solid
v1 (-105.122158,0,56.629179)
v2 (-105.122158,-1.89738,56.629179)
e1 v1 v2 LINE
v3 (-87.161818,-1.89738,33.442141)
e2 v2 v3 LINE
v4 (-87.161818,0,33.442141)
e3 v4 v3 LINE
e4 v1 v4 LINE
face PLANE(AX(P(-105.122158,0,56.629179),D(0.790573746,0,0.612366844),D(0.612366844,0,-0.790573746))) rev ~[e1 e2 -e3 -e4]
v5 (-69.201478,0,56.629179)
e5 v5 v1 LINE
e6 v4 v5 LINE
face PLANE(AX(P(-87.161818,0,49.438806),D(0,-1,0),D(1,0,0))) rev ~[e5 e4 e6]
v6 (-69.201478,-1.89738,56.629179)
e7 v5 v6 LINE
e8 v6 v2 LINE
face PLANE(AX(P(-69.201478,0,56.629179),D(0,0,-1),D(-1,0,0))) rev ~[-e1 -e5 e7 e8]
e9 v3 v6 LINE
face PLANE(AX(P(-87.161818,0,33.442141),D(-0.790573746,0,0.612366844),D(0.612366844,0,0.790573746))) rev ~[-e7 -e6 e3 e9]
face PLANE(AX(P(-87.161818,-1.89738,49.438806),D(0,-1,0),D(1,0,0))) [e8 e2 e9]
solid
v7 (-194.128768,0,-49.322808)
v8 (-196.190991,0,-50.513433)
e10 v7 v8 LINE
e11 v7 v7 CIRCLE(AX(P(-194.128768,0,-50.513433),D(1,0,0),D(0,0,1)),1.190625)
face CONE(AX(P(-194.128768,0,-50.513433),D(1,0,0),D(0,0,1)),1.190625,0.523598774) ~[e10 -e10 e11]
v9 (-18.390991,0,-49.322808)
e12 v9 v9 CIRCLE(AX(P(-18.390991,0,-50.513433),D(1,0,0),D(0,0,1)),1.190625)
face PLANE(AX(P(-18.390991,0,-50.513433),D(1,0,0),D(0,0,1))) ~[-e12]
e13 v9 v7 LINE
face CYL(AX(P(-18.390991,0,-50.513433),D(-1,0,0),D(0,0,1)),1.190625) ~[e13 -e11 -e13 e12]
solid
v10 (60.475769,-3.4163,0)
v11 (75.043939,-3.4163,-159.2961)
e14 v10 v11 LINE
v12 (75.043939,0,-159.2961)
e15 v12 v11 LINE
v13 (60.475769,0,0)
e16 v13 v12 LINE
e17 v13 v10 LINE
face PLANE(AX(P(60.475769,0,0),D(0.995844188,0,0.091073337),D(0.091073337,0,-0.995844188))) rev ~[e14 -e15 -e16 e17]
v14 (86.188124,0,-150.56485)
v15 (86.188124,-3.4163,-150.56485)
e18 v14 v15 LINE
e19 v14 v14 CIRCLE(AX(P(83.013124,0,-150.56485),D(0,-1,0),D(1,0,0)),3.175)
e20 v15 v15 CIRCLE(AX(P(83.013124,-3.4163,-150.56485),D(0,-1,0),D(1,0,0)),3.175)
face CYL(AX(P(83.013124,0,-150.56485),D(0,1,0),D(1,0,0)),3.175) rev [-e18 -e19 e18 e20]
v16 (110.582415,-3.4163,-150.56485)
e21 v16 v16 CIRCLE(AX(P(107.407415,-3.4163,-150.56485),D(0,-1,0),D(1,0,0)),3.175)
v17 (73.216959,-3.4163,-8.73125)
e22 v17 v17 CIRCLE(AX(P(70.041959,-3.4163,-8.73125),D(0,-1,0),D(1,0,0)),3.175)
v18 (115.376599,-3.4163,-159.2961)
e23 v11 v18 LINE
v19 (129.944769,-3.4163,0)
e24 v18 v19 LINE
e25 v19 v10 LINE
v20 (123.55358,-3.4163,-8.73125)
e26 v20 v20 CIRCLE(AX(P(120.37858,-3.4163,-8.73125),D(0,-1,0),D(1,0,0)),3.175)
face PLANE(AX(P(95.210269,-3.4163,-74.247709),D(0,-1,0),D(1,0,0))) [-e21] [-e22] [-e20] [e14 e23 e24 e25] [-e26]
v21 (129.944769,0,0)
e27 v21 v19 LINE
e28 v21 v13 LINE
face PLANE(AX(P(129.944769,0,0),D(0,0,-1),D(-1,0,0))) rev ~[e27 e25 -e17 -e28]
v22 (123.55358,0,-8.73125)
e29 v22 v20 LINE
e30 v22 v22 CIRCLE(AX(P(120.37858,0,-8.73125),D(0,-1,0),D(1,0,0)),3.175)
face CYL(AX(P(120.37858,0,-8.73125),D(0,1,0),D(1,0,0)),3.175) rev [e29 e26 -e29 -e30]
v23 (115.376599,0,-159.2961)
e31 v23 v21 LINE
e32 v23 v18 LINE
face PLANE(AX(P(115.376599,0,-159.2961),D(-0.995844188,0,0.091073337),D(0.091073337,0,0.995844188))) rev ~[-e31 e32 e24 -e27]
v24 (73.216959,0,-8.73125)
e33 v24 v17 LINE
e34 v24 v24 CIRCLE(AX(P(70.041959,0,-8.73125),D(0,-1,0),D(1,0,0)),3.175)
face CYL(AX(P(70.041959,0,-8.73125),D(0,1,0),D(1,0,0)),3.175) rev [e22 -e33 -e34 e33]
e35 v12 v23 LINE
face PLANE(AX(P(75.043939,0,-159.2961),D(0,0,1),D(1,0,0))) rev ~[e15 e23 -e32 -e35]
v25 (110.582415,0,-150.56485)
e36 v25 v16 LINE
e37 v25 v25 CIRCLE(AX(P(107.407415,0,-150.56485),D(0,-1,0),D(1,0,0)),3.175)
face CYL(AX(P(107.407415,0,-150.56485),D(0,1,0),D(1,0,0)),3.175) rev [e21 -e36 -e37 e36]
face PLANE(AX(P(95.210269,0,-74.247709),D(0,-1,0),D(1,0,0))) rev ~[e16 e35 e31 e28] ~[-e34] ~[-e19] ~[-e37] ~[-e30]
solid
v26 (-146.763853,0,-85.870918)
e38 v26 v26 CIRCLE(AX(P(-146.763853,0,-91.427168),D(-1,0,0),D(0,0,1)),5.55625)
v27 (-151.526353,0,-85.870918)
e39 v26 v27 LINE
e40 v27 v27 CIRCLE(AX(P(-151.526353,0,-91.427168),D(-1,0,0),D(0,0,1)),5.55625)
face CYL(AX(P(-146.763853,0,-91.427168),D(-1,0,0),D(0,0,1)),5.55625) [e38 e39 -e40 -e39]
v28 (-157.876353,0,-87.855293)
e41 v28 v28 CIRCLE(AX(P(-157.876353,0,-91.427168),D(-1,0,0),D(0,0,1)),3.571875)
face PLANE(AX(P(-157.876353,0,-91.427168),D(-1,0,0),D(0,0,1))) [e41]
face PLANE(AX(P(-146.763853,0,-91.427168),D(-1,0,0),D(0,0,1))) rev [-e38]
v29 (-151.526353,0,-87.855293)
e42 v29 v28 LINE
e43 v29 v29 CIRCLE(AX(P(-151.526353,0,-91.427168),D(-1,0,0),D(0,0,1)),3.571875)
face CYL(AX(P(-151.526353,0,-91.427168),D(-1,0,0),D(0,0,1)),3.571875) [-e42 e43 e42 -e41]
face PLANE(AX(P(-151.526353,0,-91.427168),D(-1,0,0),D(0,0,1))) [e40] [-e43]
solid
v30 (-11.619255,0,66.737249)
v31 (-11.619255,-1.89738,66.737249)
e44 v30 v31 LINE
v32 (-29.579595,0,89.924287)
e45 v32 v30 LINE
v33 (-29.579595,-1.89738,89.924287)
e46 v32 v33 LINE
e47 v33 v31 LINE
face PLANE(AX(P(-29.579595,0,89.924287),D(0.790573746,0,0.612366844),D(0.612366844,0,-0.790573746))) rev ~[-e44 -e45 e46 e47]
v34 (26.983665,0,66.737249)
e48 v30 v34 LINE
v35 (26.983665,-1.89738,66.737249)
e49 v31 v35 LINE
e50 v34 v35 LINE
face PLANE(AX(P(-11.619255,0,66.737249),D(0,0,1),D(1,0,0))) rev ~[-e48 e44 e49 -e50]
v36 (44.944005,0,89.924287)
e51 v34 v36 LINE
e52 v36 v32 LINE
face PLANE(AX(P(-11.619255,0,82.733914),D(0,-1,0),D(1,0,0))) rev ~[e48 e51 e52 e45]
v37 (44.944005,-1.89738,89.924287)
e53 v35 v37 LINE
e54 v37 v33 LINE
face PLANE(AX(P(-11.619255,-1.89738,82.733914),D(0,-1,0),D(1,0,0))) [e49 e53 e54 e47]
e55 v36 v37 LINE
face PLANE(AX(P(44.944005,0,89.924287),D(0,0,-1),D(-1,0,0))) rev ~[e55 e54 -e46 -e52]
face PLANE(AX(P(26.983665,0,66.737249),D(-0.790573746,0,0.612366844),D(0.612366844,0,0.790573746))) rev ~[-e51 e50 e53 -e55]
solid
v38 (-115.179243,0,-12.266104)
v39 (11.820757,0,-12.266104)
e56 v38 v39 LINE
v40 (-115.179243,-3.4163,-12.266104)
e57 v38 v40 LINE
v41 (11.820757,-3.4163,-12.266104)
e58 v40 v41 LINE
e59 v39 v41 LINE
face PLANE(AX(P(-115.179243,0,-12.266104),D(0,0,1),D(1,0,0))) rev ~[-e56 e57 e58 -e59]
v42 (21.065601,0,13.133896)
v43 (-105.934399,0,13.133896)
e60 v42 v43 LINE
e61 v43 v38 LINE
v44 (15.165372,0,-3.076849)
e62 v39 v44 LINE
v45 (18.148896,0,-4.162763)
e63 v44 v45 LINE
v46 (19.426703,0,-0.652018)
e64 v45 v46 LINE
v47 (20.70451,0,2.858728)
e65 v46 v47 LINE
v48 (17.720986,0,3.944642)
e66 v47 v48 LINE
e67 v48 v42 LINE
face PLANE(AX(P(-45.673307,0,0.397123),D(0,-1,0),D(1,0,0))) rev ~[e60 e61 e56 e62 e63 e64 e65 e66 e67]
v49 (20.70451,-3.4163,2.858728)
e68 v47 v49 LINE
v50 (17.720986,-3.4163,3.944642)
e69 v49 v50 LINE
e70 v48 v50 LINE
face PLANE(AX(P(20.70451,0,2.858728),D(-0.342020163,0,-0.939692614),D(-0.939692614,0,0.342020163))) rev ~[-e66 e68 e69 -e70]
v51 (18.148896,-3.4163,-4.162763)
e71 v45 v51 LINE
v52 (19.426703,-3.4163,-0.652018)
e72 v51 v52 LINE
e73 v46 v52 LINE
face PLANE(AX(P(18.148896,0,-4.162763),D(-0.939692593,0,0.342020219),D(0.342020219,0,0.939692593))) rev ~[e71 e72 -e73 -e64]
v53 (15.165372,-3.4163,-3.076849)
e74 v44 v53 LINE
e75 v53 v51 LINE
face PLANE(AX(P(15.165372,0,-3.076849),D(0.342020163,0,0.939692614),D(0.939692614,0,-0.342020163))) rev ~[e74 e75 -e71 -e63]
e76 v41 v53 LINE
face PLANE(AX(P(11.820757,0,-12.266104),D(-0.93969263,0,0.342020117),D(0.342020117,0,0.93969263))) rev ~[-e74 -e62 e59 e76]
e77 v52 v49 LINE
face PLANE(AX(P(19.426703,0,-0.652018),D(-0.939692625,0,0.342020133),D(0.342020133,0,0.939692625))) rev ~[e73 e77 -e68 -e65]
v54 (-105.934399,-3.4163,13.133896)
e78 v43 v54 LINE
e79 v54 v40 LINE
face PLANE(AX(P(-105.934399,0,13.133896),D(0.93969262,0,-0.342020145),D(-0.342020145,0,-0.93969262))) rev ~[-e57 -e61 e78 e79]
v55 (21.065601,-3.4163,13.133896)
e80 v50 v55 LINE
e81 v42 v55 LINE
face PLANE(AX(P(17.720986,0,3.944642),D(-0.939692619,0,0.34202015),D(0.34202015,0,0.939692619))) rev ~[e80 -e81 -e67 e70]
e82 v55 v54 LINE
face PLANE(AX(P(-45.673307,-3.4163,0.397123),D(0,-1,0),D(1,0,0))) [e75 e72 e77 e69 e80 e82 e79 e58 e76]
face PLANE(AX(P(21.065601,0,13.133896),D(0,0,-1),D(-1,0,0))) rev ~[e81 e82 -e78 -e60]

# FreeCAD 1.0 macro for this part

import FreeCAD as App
import Part
import Sketcher
from FreeCAD import Vector
Q = App.Units.Quantity

doc = App.newDocument("Part")
params = doc.addObject("Spreadsheet::Sheet", "Params")
for row, (alias, value) in enumerate([
    ("sketch1_width", "5 in"),
    ("sketch1_length", "0.385 in"),
    ("sketch1_length2", "0.125 in"),
    ("pad1_length", "0.1345 in"),
    ("pad2_length", "0.0747 in"),
    ("sketch3_width", "2.934 in"),
    ("pad3_length", "0.0747 in"),
    ("sketch4_diameter", "0.25 in"),
    ("sketch4_width", "2.735 in"),
    ("pad4_length", "0.1345 in"),
    ("sketch5_width", "0.25 in"),
    ("sketch5_width2", "0.4375 in"),
    ("sketch5_height", "0.140625 in"),
    ("sketch5_height2", "0.21875 in"),
    ("revolution_angle", "360 deg"),
    ("sketch6_width", "7 in"),
    ("sketch6_height", "0.046875 in"),
    ("revolution2_angle", "360 deg"),
], start=1):
    params.set(f"A{row}", alias)
    params.set(f"B{row}", "=" + value)
    params.setAlias(f"B{row}", alias)

body = doc.addObject("PartDesign::Body", "Body")

# Sketch on XZ plane
sketch1 = body.newObject("Sketcher::SketchObject", "Sketch")
sketch1.AttachmentSupport = (doc.getObject("XZ_Plane"), [""])
sketch1.MapMode = "FlatFace"
sketch1.addGeometry([
    Part.LineSegment(Vector(-115.2, -12.3, 0), Vector(11.8, -12.3, 0)),  # 0
    Part.LineSegment(Vector(11.8, -12.3, 0), Vector(15.2, -3.1, 0)),  # 1
    Part.LineSegment(Vector(15.2, -3.1, 0), Vector(18.1, -4.2, 0)),  # 2
    Part.LineSegment(Vector(18.1, -4.2, 0), Vector(19.4, -0.7, 0)),  # 3
    Part.LineSegment(Vector(19.4, -0.7, 0), Vector(20.7, 2.9, 0)),  # 4
    Part.LineSegment(Vector(20.7, 2.9, 0), Vector(17.7, 3.9, 0)),  # 5
    Part.LineSegment(Vector(17.7, 3.9, 0), Vector(21.1, 13.1, 0)),  # 6
    Part.LineSegment(Vector(21.1, 13.1, 0), Vector(-105.9, 13.1, 0)),  # 7
    Part.LineSegment(Vector(-105.9, 13.1, 0), Vector(-115.2, -12.3, 0)),  # 8
], False)
sketch1.addConstraint([
    Sketcher.Constraint("Coincident", 0, 2, 1, 1),
    Sketcher.Constraint("Coincident", 1, 2, 2, 1),
    Sketcher.Constraint("Coincident", 2, 2, 3, 1),
    Sketcher.Constraint("Coincident", 3, 2, 4, 1),
    Sketcher.Constraint("Coincident", 4, 2, 5, 1),
    Sketcher.Constraint("Coincident", 5, 2, 6, 1),
    Sketcher.Constraint("Coincident", 6, 2, 7, 1),
    Sketcher.Constraint("Coincident", 7, 2, 8, 1),
    Sketcher.Constraint("Coincident", 8, 2, 0, 1),
    Sketcher.Constraint("Horizontal", 0),
    Sketcher.Constraint("Horizontal", 7),
    Sketcher.Constraint("Perpendicular", 1, 2),
    Sketcher.Constraint("Perpendicular", 2, 3),
    Sketcher.Constraint("Parallel", 3, 4),
    Sketcher.Constraint("Perpendicular", 4, 5),
    Sketcher.Constraint("Perpendicular", 5, 6),
    Sketcher.Constraint("Parallel", 6, 8),
    Sketcher.Constraint("Equal", 0, 7),
    Sketcher.Constraint("Equal", 3, 4),
    Sketcher.Constraint("Equal", 1, 6),
    Sketcher.Constraint("DistanceX", 0, 1, 0, 2, Q("5 in")),
    Sketcher.Constraint("Angle", 1, Q("70.000002 deg")),
    Sketcher.Constraint("DistanceY", 0, 2, 7, 2, Q("1 in")),
    Sketcher.Constraint("Distance", 1, Q("0.385 in")),
    Sketcher.Constraint("Distance", 2, Q("0.125 in")),
    Sketcher.Constraint("DistanceX", -1, 1, 6, 2, Q("21.065601 mm")),
    Sketcher.Constraint("DistanceY", 1, 2, -1, 1, Q("3.076849 mm")),
])
sketch1.setExpression("Constraints[20]", "Params.sketch1_width")
sketch1.setExpression("Constraints[23]", "Params.sketch1_length")
sketch1.setExpression("Constraints[24]", "Params.sketch1_length2")
pad1 = body.newObject("PartDesign::Pad", "Pad")
pad1.Profile = sketch1
pad1.setExpression("Length", "Params.pad1_length")
body2 = doc.addObject("PartDesign::Body", "Body001")

# Sketch on XZ plane
sketch2 = body2.newObject("Sketcher::SketchObject", "Sketch001")
sketch2.AttachmentSupport = (doc.getObject("XZ_Plane001"), [""])
sketch2.MapMode = "FlatFace"
sketch2.addGeometry([
    Part.LineSegment(Vector(-105, 57, 0), Vector(-87, 33, 0)),
    Part.LineSegment(Vector(-87, 33, 0), Vector(-69, 57, 0)),
    Part.LineSegment(Vector(-69, 57, 0), Vector(-105, 57, 0)),
], False)
sketch2.addConstraint([
    Sketcher.Constraint("Coincident", 0, 2, 1, 1),
    Sketcher.Constraint("Coincident", 1, 2, 2, 1),
    Sketcher.Constraint("Coincident", 2, 2, 0, 1),
    Sketcher.Constraint("Horizontal", 2),
    Sketcher.Constraint("Equal", 0, 1),
    Sketcher.Constraint("DistanceX", 2, 2, 2, 1, Q("1.4142 in")),
    Sketcher.Constraint("Distance", 0, Q("1.1547 in")),
    Sketcher.Constraint("DistanceY", -1, 1, 0, 2, Q("33.442141 mm")),
    Sketcher.Constraint("DistanceX", 2, 2, -1, 1, Q("105.122158 mm")),
])
pad2 = body2.newObject("PartDesign::Pad", "Pad001")
pad2.Profile = sketch2
pad2.setExpression("Length", "Params.pad2_length")
body3 = doc.addObject("PartDesign::Body", "Body002")

# Sketch on XZ plane
sketch3 = body3.newObject("Sketcher::SketchObject", "Sketch002")
sketch3.AttachmentSupport = (doc.getObject("XZ_Plane002"), [""])
sketch3.MapMode = "FlatFace"
sketch3.addGeometry([
    Part.LineSegment(Vector(-30, 90, 0), Vector(-12, 67, 0)),
    Part.LineSegment(Vector(-12, 67, 0), Vector(27, 67, 0)),
    Part.LineSegment(Vector(27, 67, 0), Vector(45, 90, 0)),
    Part.LineSegment(Vector(45, 90, 0), Vector(-30, 90, 0)),
], False)
sketch3.addConstraint([
    Sketcher.Constraint("Coincident", 0, 2, 1, 1),
    Sketcher.Constraint("Coincident", 1, 2, 2, 1),
    Sketcher.Constraint("Coincident", 2, 2, 3, 1),
    Sketcher.Constraint("Coincident", 3, 2, 0, 1),
    Sketcher.Constraint("Horizontal", 1),
    Sketcher.Constraint("Horizontal", 3),
    Sketcher.Constraint("Equal", 0, 2),
    Sketcher.Constraint("DistanceX", 3, 2, 3, 1, Q("2.934 in")),
    Sketcher.Constraint("DistanceX", 1, 1, 1, 2, Q("1.5198 in")),
    Sketcher.Constraint("Distance", 0, Q("1.1547 in")),
    Sketcher.Constraint("DistanceY", -1, 1, 0, 2, Q("66.737249 mm")),
    Sketcher.Constraint("DistanceX", 0, 2, -1, 1, Q("11.619255 mm")),
])
sketch3.setExpression("Constraints[7]", "Params.sketch3_width")
pad3 = body3.newObject("PartDesign::Pad", "Pad002")
pad3.Profile = sketch3
pad3.setExpression("Length", "Params.pad3_length")
body4 = doc.addObject("PartDesign::Body", "Body003")

# Sketch on XZ plane
sketch4 = body4.newObject("Sketcher::SketchObject", "Sketch003")
sketch4.AttachmentSupport = (doc.getObject("XZ_Plane003"), [""])
sketch4.MapMode = "FlatFace"
sketch4.addGeometry([
    Part.LineSegment(Vector(75, -159.3, 0), Vector(115.4, -159.3, 0)),  # 0
    Part.LineSegment(Vector(115.4, -159.3, 0), Vector(129.9, 0, 0)),  # 1
    Part.LineSegment(Vector(129.9, 0, 0), Vector(60.5, 0, 0)),  # 2
    Part.LineSegment(Vector(60.5, 0, 0), Vector(75, -159.3, 0)),  # 3
    Part.Circle(Vector(83, -150.6, 0), Vector(0, 0, 1), 3.2),  # 4
    Part.Circle(Vector(107.4, -150.6, 0), Vector(0, 0, 1), 3.2),  # 5
    Part.Circle(Vector(70, -8.7, 0), Vector(0, 0, 1), 3.2),  # 6
    Part.Circle(Vector(120.4, -8.7, 0), Vector(0, 0, 1), 3.2),  # 7
], False)
sketch4.addConstraint([
    Sketcher.Constraint("Coincident", 0, 2, 1, 1),
    Sketcher.Constraint("Coincident", 1, 2, 2, 1),
    Sketcher.Constraint("Coincident", 2, 2, 3, 1),
    Sketcher.Constraint("Coincident", 3, 2, 0, 1),
    Sketcher.Constraint("Horizontal", 0),
    Sketcher.Constraint("Horizontal", 2),
    Sketcher.Constraint("Equal", 4, 5),
    Sketcher.Constraint("Equal", 5, 6),
    Sketcher.Constraint("Equal", 6, 7),
    Sketcher.Constraint("PointOnObject", 1, 2, -1),
    Sketcher.Constraint("Horizontal", 4, 3, 5, 3),
    Sketcher.Constraint("Horizontal", 6, 3, 7, 3),
    Sketcher.Constraint("Equal", 1, 3),
    Sketcher.Constraint("Diameter", 4, Q("0.25 in")),
    Sketcher.Constraint("DistanceX", 2, 2, 2, 1, Q("2.735 in")),
    Sketcher.Constraint("DistanceX", 0, 1, 0, 2, Q("1.5879 in")),
    Sketcher.Constraint("DistanceY", 6, 3, -1, 1, Q("0.34375 in")),
    Sketcher.Constraint("DistanceY", 4, 3, 6, 3, Q("5.584 in")),
    Sketcher.Constraint("DistanceY", 0, 2, 5, 3, Q("0.34375 in")),
    Sketcher.Constraint("DistanceX", -1, 1, 0, 2, Q("115.376599 mm")),
    Sketcher.Constraint("DistanceX", -1, 1, 6, 3, Q("70.041959 mm")),
    Sketcher.Constraint("DistanceX", -1, 1, 7, 3, Q("120.37858 mm")),
    Sketcher.Constraint("DistanceX", 4, 3, 5, 3, Q("24.394291 mm")),
    Sketcher.Constraint("DistanceX", -1, 1, 4, 3, Q("83.013124 mm")),
])
sketch4.setExpression("Constraints[13]", "Params.sketch4_diameter")
sketch4.setExpression("Constraints[14]", "Params.sketch4_width")
pad4 = body4.newObject("PartDesign::Pad", "Pad003")
pad4.Profile = sketch4
pad4.setExpression("Length", "Params.pad4_length")
body5 = doc.addObject("PartDesign::Body", "Body004")

# Sketch on XZ plane
sketch5 = body5.newObject("Sketcher::SketchObject", "Sketch004")
sketch5.AttachmentSupport = (doc.getObject("XZ_Plane004"), [""])
sketch5.MapMode = "FlatFace"
sketch5.addGeometry([
    Part.LineSegment(Vector(-151.5, -87.9, 0), Vector(-157.9, -87.9, 0)),  # 0
    Part.LineSegment(Vector(-157.9, -87.9, 0), Vector(-157.9, -91.4, 0)),  # 1
    Part.LineSegment(Vector(-157.9, -91.4, 0), Vector(-146.8, -91.4, 0)),  # 2
    Part.LineSegment(Vector(-146.8, -91.4, 0), Vector(-146.8, -85.9, 0)),  # 3
    Part.LineSegment(Vector(-146.8, -85.9, 0), Vector(-151.5, -85.9, 0)),  # 4
    Part.LineSegment(Vector(-151.5, -85.9, 0), Vector(-151.5, -87.9, 0)),  # 5
], False)
sketch5.addGeometry(Part.LineSegment(Vector(-146.8, -91.4, 0), Vector(-157.9, -91.4, 0)), True)  # axis
sketch5.addConstraint([
    Sketcher.Constraint("Coincident", 0, 2, 1, 1),
    Sketcher.Constraint("Coincident", 1, 2, 2, 1),
    Sketcher.Constraint("Coincident", 2, 2, 3, 1),
    Sketcher.Constraint("Coincident", 3, 2, 4, 1),
    Sketcher.Constraint("Coincident", 4, 2, 5, 1),
    Sketcher.Constraint("Coincident", 5, 2, 0, 1),
    Sketcher.Constraint("Horizontal", 0),
    Sketcher.Constraint("Vertical", 1),
    Sketcher.Constraint("Horizontal", 2),
    Sketcher.Constraint("Vertical", 3),
    Sketcher.Constraint("Horizontal", 4),
    Sketcher.Constraint("Vertical", 5),
    Sketcher.Constraint("Horizontal", 6),
    Sketcher.Constraint("Coincident", 6, 1, 2, 2),
    Sketcher.Constraint("Vertical", 0, 2, 6, 2),
    Sketcher.Constraint("DistanceX", 0, 2, 0, 1, Q("0.25 in")),
    Sketcher.Constraint("DistanceX", 2, 1, 2, 2, Q("0.4375 in")),
    Sketcher.Constraint("DistanceY", 1, 2, 1, 1, Q("0.140625 in")),
    Sketcher.Constraint("DistanceY", 3, 1, 3, 2, Q("0.21875 in")),
    Sketcher.Constraint("DistanceY", 3, 2, -1, 1, Q("85.870918 mm")),
    Sketcher.Constraint("DistanceX", 0, 2, -1, 1, Q("157.876353 mm")),
])
sketch5.setExpression("Constraints[15]", "Params.sketch5_width")
sketch5.setExpression("Constraints[16]", "Params.sketch5_width2")
sketch5.setExpression("Constraints[17]", "Params.sketch5_height")
sketch5.setExpression("Constraints[18]", "Params.sketch5_height2")
revolution = body5.newObject("PartDesign::Revolution", "Revolution")
revolution.Profile = sketch5
revolution.ReferenceAxis = (sketch5, ["Axis0"])
revolution.setExpression("Angle", "Params.revolution_angle")
body6 = doc.addObject("PartDesign::Body", "Body005")

# Sketch on XZ plane
sketch6 = body6.newObject("Sketcher::SketchObject", "Sketch005")
sketch6.AttachmentSupport = (doc.getObject("XZ_Plane005"), [""])
sketch6.MapMode = "FlatFace"
sketch6.addGeometry([
    Part.LineSegment(Vector(-194.1, -49.3, 0), Vector(-196.2, -50.5, 0)),
    Part.LineSegment(Vector(-196.2, -50.5, 0), Vector(-18.4, -50.5, 0)),
    Part.LineSegment(Vector(-18.4, -50.5, 0), Vector(-18.4, -49.3, 0)),
    Part.LineSegment(Vector(-18.4, -49.3, 0), Vector(-194.1, -49.3, 0)),
], False)
sketch6.addGeometry(Part.LineSegment(Vector(-196.2, -50.5, 0), Vector(-18.4, -50.5, 0)), True)  # axis
sketch6.addConstraint([
    Sketcher.Constraint("Coincident", 0, 2, 1, 1),
    Sketcher.Constraint("Coincident", 1, 2, 2, 1),
    Sketcher.Constraint("Coincident", 2, 2, 3, 1),
    Sketcher.Constraint("Coincident", 3, 2, 0, 1),
    Sketcher.Constraint("Horizontal", 1),
    Sketcher.Constraint("Vertical", 2),
    Sketcher.Constraint("Horizontal", 3),
    Sketcher.Constraint("Horizontal", 4),
    Sketcher.Constraint("Coincident", 4, 1, 0, 2),
    Sketcher.Constraint("Vertical", 2, 2, 4, 2),
    Sketcher.Constraint("DistanceX", 1, 1, 1, 2, Q("7 in")),
    Sketcher.Constraint("Angle", 0, Q("-150 deg")),
    Sketcher.Constraint("DistanceY", 2, 1, 2, 2, Q("0.046875 in")),
    Sketcher.Constraint("DistanceX", 0, 2, -1, 1, Q("196.190991 mm")),
    Sketcher.Constraint("DistanceY", 2, 2, -1, 1, Q("49.322808 mm")),
])
sketch6.setExpression("Constraints[10]", "Params.sketch6_width")
sketch6.setExpression("Constraints[12]", "Params.sketch6_height")
revolution2 = body6.newObject("PartDesign::Revolution", "Revolution001")
revolution2.Profile = sketch6
revolution2.ReferenceAxis = (sketch6, ["Axis0"])
revolution2.setExpression("Angle", "Params.revolution2_angle")

doc.recompute()
